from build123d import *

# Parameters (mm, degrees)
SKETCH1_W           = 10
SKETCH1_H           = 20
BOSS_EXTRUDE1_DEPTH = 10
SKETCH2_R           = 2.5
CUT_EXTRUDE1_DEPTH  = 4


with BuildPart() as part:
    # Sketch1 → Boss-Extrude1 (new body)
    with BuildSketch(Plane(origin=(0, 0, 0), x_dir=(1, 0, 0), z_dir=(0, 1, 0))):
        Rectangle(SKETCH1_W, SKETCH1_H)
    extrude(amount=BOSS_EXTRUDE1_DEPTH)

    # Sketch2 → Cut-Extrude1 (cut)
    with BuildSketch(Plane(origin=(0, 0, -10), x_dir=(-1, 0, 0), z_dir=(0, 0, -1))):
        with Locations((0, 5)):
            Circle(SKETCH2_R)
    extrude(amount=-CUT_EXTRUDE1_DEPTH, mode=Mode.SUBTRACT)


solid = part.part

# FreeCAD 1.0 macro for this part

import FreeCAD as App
import Part
import Sketcher

V = App.Vector
Q = App.Units.Quantity

doc = App.newDocument("Part")
params = doc.addObject("Spreadsheet::Sheet", "Params")
for row, (alias, value) in enumerate([
    ("sketch1_width", "10 mm"),
    ("sketch1_height", "20 mm"),
    ("pad1_length", "10 mm"),
    ("sketch2_diameter", "5 mm"),
    ("pocket1_length", "4 mm"),
], start=1):
    params.set(f"A{row}", alias)
    params.set(f"B{row}", "=" + value)
    params.setAlias(f"B{row}", alias)

body = doc.addObject("PartDesign::Body", "Body")

sketch1 = doc.addObject("Sketcher::SketchObject", "Sketch")
body.addObject(sketch1)
sketch1.AttachmentSupport = (doc.XZ_Plane, [""])
sketch1.MapMode = "FlatFace"
sketch1.addGeometry([
    Part.LineSegment(V(-5, -10, 0), V(-5, 10, 0)),
    Part.LineSegment(V(-5, 10, 0), V(5, 10, 0)),
    Part.LineSegment(V(5, 10, 0), V(5, -10, 0)),
    Part.LineSegment(V(5, -10, 0), V(-5, -10, 0)),
], False)
sketch1.addConstraint([
    Sketcher.Constraint("Coincident", 0, 2, 1, 1),
    Sketcher.Constraint("Coincident", 1, 2, 2, 1),
    Sketcher.Constraint("Coincident", 2, 2, 3, 1),
    Sketcher.Constraint("Coincident", 3, 2, 0, 1),
    Sketcher.Constraint("Vertical", 0),
    Sketcher.Constraint("Horizontal", 1),
    Sketcher.Constraint("Vertical", 2),
    Sketcher.Constraint("Horizontal", 3),
    Sketcher.Constraint("Symmetric", 0, 2, 2, 2, -1, 1),
    Sketcher.Constraint("DistanceX", 1, 1, 1, 2, Q("10 mm")),
    Sketcher.Constraint("DistanceY", 0, 1, 0, 2, Q("20 mm")),
])
sketch1.setExpression("Constraints[9]", "Params.sketch1_width")
sketch1.setExpression("Constraints[10]", "Params.sketch1_height")
pad1 = doc.addObject("PartDesign::Pad", "Pad")
body.addObject(pad1)
pad1.Profile = sketch1
pad1.setExpression("Length", "Params.pad1_length")
pad1.Reversed = True

sketch2 = doc.addObject("Sketcher::SketchObject", "Sketch001")
body.addObject(sketch2)
sketch2.AttachmentSupport = (doc.XY_Plane, [""])
sketch2.MapMode = "FlatFace"
sketch2.AttachmentOffset = App.Placement(V(0, 0, -10), App.Rotation())
sketch2.addGeometry(Part.Circle(V(0, 5, 0), V(0, 0, 1), 2.5), False)
sketch2.addConstraint([
    Sketcher.Constraint("PointOnObject", 0, 3, -2),
    Sketcher.Constraint("Diameter", 0, Q("5 mm")),
    Sketcher.Constraint("DistanceY", -1, 1, 0, 3, Q("5 mm")),
])
sketch2.setExpression("Constraints[1]", "Params.sketch2_diameter")
pocket1 = doc.addObject("PartDesign::Pocket", "Pocket")
body.addObject(pocket1)
pocket1.Profile = sketch2
pocket1.setExpression("Length", "Params.pocket1_length")
pocket1.Reversed = True

doc.recompute()
